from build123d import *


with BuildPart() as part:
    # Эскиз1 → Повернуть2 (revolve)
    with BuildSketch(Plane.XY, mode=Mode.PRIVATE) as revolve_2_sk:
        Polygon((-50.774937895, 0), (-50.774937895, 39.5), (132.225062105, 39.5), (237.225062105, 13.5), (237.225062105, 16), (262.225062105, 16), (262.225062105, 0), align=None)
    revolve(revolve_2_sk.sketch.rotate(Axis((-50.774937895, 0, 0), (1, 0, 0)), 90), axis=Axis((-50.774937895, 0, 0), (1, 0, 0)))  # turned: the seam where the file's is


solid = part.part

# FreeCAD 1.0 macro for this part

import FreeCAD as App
import Part
import Sketcher


def add_polygon(sketch, points):
    """Adds a closed chain of lines whose ends are joined by coincident constraints."""
    first, n = sketch.GeometryCount, len(points)
    for a, b in zip(points, points[1:] + points[:1]):
        sketch.addGeometry(Part.LineSegment(App.Vector(*a, 0), App.Vector(*b, 0)), False)
    for i in range(n):
        sketch.addConstraint(Sketcher.Constraint("Coincident", first + i, 2, first + (i + 1) % n, 1))

doc = App.newDocument("Part")
body = doc.addObject("PartDesign::Body", "Body")

sketch1 = body.newObject("Sketcher::SketchObject", "Sketch")
sketch1.AttachmentSupport = (doc.getObject("XY_Plane"), [""])
sketch1.MapMode = "FlatFace"
add_polygon(sketch1, [(-50.8, 39.5), (-50.8, 0), (262.2, 0), (262.2, 16), (237.2, 16), (237.2, 13.5), (132.2, 39.5)])
sketch1.addConstraint(Sketcher.Constraint("Vertical", 0))
sketch1.addConstraint(Sketcher.Constraint("Horizontal", 1))
sketch1.addConstraint(Sketcher.Constraint("Vertical", 2))
sketch1.addConstraint(Sketcher.Constraint("Horizontal", 3))
sketch1.addConstraint(Sketcher.Constraint("Vertical", 4))
sketch1.addConstraint(Sketcher.Constraint("Horizontal", 6))
sketch1.addConstraint(Sketcher.Constraint("PointOnObject", 0, 2, -1))
sketch1.addConstraint(Sketcher.Constraint("DistanceX", 1, 1, 1, 2, 313.0))
sketch1.addConstraint(Sketcher.Constraint("DistanceX", 3, 2, 3, 1, 25.0))
sketch1.addConstraint(Sketcher.Constraint("DistanceX", 6, 2, 6, 1, 183.0))
sketch1.addConstraint(Sketcher.Constraint("DistanceY", 2, 1, 2, 2, 16.0))
sketch1.addConstraint(Sketcher.Constraint("DistanceY", 0, 2, 0, 1, 39.5))
sketch1.addConstraint(Sketcher.Constraint("DistanceY", 4, 2, 4, 1, 2.5))
sketch1.addConstraint(Sketcher.Constraint("DistanceX", 0, 2, -1, 1, 50.774938))
revolution = body.newObject("PartDesign::Revolution", "Revolution")
revolution.Profile = sketch1
revolution.ReferenceAxis = (sketch1, ["H_Axis"])
revolution.Angle = 360

doc.recompute()
